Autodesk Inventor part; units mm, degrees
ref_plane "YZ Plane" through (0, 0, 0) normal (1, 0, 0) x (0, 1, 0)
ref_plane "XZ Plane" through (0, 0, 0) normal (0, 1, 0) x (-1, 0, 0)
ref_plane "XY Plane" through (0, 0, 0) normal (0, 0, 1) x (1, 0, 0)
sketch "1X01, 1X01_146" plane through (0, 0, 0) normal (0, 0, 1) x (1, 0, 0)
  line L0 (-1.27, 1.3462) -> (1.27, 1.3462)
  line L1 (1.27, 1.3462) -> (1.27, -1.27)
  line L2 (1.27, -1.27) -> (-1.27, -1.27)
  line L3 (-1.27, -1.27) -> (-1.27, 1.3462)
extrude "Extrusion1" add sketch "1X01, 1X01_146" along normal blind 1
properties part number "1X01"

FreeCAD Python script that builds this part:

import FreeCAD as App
import Part
import Sketcher
Q = App.Units.Quantity

doc = App.newDocument("Part")
params = doc.addObject("Spreadsheet::Sheet", "Params")
for row, (alias, value) in enumerate([
    ("sketch1_width", "0.1 in"),
    ("sketch1_height", "0.103 in"),
    ("pad1_length", "1 mm"),
], start=1):
    params.set(f"A{row}", alias)
    params.set(f"B{row}", "=" + value)
    params.setAlias(f"B{row}", alias)

body = doc.addObject("PartDesign::Body", "Body")

# Sketch on XY plane
sketch1 = body.newObject("Sketcher::SketchObject", "Sketch")
sketch1.AttachmentSupport = (doc.getObject("XY_Plane"), [""])
sketch1.MapMode = "FlatFace"
sketch1.addGeometry([
    Part.LineSegment(App.Vector(1.3, 1.3, 0), App.Vector(-1.3, 1.3, 0)),
    Part.LineSegment(App.Vector(-1.3, 1.3, 0), App.Vector(-1.3, -1.3, 0)),
    Part.LineSegment(App.Vector(-1.3, -1.3, 0), App.Vector(1.3, -1.3, 0)),
    Part.LineSegment(App.Vector(1.3, -1.3, 0), App.Vector(1.3, 1.3, 0)),
], False)
sketch1.addConstraint([
    Sketcher.Constraint("Coincident", 0, 2, 1, 1),
    Sketcher.Constraint("Coincident", 1, 2, 2, 1),
    Sketcher.Constraint("Coincident", 2, 2, 3, 1),
    Sketcher.Constraint("Coincident", 3, 2, 0, 1),
    Sketcher.Constraint("Horizontal", 0),
    Sketcher.Constraint("Vertical", 1),
    Sketcher.Constraint("Horizontal", 2),
    Sketcher.Constraint("Vertical", 3),
    Sketcher.Constraint("DistanceX", 0, 2, 0, 1, Q("0.1 in")),
    Sketcher.Constraint("DistanceY", 1, 2, 1, 1, Q("0.103 in")),
    Sketcher.Constraint("DistanceX", 0, 2, -1, 1, Q("0.05 in")),
    Sketcher.Constraint("DistanceY", 1, 2, -1, 1, Q("0.05 in")),
])
sketch1.setExpression("Constraints[8]", "Params.sketch1_width")
sketch1.setExpression("Constraints[9]", "Params.sketch1_height")
pad1 = body.newObject("PartDesign::Pad", "Pad")
pad1.Profile = sketch1
pad1.setExpression("Length", "Params.pad1_length")

doc.recompute()
